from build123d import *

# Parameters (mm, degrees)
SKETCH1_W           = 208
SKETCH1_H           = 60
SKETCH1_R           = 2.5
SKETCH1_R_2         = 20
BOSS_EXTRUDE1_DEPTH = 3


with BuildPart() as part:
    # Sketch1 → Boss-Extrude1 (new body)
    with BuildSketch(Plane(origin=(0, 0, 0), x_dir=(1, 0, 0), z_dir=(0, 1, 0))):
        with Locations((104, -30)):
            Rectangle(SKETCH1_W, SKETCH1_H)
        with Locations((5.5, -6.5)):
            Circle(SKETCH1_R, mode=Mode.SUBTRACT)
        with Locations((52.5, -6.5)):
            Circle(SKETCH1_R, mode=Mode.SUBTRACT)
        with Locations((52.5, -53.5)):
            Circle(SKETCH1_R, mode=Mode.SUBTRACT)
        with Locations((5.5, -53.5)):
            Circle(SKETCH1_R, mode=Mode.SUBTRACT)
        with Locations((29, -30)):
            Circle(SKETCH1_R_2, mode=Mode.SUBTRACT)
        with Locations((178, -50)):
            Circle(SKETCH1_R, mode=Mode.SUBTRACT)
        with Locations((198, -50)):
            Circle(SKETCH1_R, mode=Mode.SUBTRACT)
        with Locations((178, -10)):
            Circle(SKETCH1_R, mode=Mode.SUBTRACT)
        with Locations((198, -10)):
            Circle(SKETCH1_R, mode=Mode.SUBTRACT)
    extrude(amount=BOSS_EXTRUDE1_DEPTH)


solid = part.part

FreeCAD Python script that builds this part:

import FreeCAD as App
import Part
import Sketcher
Q = App.Units.Quantity

doc = App.newDocument("Part")
body = doc.addObject("PartDesign::Body", "Body")

sketch1 = body.newObject("Sketcher::SketchObject", "Sketch")
sketch1.AttachmentSupport = (doc.getObject("XZ_Plane"), [""])
sketch1.MapMode = "FlatFace"
sketch1.addGeometry([
    Part.LineSegment(App.Vector(0, 0, 0), App.Vector(0, 60, 0)),
    Part.LineSegment(App.Vector(0, 60, 0), App.Vector(208, 60, 0)),
    Part.LineSegment(App.Vector(208, 60, 0), App.Vector(208, 0, 0)),
    Part.LineSegment(App.Vector(208, 0, 0), App.Vector(0, 0, 0)),
    Part.Circle(App.Vector(5.5, 53.5, 0), App.Vector(0, 0, 1), 2.5),
    Part.Circle(App.Vector(52.5, 53.5, 0), App.Vector(0, 0, 1), 2.5),
    Part.Circle(App.Vector(178, 50, 0), App.Vector(0, 0, 1), 2.5),
    Part.Circle(App.Vector(198, 50, 0), App.Vector(0, 0, 1), 2.5),
    Part.Circle(App.Vector(29, 30, 0), App.Vector(0, 0, 1), 20),
    Part.Circle(App.Vector(5.5, 6.5, 0), App.Vector(0, 0, 1), 2.5),
    Part.Circle(App.Vector(52.5, 6.5, 0), App.Vector(0, 0, 1), 2.5),
    Part.Circle(App.Vector(178, 10, 0), App.Vector(0, 0, 1), 2.5),
    Part.Circle(App.Vector(198, 10, 0), App.Vector(0, 0, 1), 2.5),
], False)
sketch1.addConstraint([
    Sketcher.Constraint("Coincident", 0, 2, 1, 1),
    Sketcher.Constraint("Coincident", 1, 2, 2, 1),
    Sketcher.Constraint("Coincident", 2, 2, 3, 1),
    Sketcher.Constraint("Coincident", 3, 2, 0, 1),
    Sketcher.Constraint("Vertical", 0),
    Sketcher.Constraint("Horizontal", 1),
    Sketcher.Constraint("Vertical", 2),
    Sketcher.Constraint("Horizontal", 3),
    Sketcher.Constraint("Coincident", 3, 2, -1, 1),
    Sketcher.Constraint("Equal", 4, 5),
    Sketcher.Constraint("Equal", 5, 6),
    Sketcher.Constraint("Equal", 6, 7),
    Sketcher.Constraint("Equal", 7, 9),
    Sketcher.Constraint("Equal", 9, 10),
    Sketcher.Constraint("Equal", 10, 11),
    Sketcher.Constraint("Equal", 11, 12),
    Sketcher.Constraint("Horizontal", 4, 3, 5, 3),
    Sketcher.Constraint("Horizontal", 6, 3, 7, 3),
    Sketcher.Constraint("Horizontal", 9, 3, 10, 3),
    Sketcher.Constraint("Horizontal", 11, 3, 12, 3),
    Sketcher.Constraint("Vertical", 4, 3, 9, 3),
    Sketcher.Constraint("Vertical", 5, 3, 10, 3),
    Sketcher.Constraint("Vertical", 6, 3, 11, 3),
    Sketcher.Constraint("Vertical", 7, 3, 12, 3),
    Sketcher.Constraint("Diameter", 4, Q("5 mm")),
    Sketcher.Constraint("Diameter", 8, Q("40 mm")),
    Sketcher.Constraint("DistanceX", 1, 1, 1, 2, Q("208 mm")),
    Sketcher.Constraint("DistanceY", 0, 1, 0, 2, Q("60 mm")),
    Sketcher.Constraint("DistanceX", -1, 1, 6, 3, Q("178 mm")),
    Sketcher.Constraint("DistanceY", -1, 1, 6, 3, Q("50 mm")),
    Sketcher.Constraint("DistanceX", -1, 1, 7, 3, Q("198 mm")),
    Sketcher.Constraint("DistanceX", -1, 1, 8, 3, Q("29 mm")),
    Sketcher.Constraint("DistanceY", -1, 1, 8, 3, Q("30 mm")),
    Sketcher.Constraint("DistanceY", -1, 1, 11, 3, Q("10 mm")),
    Sketcher.Constraint("DistanceX", 4, 3, 5, 3, Q("47 mm")),
    Sketcher.Constraint("DistanceY", 9, 3, 4, 3, Q("47 mm")),
    Sketcher.Constraint("DistanceX", -1, 1, 4, 3, Q("5.5 mm")),
    Sketcher.Constraint("DistanceY", -1, 1, 4, 3, Q("53.5 mm")),
])
pad1 = body.newObject("PartDesign::Pad", "Pad")
pad1.Profile = sketch1
pad1.Length = 3
pad1.Reversed = True

doc.recompute()
